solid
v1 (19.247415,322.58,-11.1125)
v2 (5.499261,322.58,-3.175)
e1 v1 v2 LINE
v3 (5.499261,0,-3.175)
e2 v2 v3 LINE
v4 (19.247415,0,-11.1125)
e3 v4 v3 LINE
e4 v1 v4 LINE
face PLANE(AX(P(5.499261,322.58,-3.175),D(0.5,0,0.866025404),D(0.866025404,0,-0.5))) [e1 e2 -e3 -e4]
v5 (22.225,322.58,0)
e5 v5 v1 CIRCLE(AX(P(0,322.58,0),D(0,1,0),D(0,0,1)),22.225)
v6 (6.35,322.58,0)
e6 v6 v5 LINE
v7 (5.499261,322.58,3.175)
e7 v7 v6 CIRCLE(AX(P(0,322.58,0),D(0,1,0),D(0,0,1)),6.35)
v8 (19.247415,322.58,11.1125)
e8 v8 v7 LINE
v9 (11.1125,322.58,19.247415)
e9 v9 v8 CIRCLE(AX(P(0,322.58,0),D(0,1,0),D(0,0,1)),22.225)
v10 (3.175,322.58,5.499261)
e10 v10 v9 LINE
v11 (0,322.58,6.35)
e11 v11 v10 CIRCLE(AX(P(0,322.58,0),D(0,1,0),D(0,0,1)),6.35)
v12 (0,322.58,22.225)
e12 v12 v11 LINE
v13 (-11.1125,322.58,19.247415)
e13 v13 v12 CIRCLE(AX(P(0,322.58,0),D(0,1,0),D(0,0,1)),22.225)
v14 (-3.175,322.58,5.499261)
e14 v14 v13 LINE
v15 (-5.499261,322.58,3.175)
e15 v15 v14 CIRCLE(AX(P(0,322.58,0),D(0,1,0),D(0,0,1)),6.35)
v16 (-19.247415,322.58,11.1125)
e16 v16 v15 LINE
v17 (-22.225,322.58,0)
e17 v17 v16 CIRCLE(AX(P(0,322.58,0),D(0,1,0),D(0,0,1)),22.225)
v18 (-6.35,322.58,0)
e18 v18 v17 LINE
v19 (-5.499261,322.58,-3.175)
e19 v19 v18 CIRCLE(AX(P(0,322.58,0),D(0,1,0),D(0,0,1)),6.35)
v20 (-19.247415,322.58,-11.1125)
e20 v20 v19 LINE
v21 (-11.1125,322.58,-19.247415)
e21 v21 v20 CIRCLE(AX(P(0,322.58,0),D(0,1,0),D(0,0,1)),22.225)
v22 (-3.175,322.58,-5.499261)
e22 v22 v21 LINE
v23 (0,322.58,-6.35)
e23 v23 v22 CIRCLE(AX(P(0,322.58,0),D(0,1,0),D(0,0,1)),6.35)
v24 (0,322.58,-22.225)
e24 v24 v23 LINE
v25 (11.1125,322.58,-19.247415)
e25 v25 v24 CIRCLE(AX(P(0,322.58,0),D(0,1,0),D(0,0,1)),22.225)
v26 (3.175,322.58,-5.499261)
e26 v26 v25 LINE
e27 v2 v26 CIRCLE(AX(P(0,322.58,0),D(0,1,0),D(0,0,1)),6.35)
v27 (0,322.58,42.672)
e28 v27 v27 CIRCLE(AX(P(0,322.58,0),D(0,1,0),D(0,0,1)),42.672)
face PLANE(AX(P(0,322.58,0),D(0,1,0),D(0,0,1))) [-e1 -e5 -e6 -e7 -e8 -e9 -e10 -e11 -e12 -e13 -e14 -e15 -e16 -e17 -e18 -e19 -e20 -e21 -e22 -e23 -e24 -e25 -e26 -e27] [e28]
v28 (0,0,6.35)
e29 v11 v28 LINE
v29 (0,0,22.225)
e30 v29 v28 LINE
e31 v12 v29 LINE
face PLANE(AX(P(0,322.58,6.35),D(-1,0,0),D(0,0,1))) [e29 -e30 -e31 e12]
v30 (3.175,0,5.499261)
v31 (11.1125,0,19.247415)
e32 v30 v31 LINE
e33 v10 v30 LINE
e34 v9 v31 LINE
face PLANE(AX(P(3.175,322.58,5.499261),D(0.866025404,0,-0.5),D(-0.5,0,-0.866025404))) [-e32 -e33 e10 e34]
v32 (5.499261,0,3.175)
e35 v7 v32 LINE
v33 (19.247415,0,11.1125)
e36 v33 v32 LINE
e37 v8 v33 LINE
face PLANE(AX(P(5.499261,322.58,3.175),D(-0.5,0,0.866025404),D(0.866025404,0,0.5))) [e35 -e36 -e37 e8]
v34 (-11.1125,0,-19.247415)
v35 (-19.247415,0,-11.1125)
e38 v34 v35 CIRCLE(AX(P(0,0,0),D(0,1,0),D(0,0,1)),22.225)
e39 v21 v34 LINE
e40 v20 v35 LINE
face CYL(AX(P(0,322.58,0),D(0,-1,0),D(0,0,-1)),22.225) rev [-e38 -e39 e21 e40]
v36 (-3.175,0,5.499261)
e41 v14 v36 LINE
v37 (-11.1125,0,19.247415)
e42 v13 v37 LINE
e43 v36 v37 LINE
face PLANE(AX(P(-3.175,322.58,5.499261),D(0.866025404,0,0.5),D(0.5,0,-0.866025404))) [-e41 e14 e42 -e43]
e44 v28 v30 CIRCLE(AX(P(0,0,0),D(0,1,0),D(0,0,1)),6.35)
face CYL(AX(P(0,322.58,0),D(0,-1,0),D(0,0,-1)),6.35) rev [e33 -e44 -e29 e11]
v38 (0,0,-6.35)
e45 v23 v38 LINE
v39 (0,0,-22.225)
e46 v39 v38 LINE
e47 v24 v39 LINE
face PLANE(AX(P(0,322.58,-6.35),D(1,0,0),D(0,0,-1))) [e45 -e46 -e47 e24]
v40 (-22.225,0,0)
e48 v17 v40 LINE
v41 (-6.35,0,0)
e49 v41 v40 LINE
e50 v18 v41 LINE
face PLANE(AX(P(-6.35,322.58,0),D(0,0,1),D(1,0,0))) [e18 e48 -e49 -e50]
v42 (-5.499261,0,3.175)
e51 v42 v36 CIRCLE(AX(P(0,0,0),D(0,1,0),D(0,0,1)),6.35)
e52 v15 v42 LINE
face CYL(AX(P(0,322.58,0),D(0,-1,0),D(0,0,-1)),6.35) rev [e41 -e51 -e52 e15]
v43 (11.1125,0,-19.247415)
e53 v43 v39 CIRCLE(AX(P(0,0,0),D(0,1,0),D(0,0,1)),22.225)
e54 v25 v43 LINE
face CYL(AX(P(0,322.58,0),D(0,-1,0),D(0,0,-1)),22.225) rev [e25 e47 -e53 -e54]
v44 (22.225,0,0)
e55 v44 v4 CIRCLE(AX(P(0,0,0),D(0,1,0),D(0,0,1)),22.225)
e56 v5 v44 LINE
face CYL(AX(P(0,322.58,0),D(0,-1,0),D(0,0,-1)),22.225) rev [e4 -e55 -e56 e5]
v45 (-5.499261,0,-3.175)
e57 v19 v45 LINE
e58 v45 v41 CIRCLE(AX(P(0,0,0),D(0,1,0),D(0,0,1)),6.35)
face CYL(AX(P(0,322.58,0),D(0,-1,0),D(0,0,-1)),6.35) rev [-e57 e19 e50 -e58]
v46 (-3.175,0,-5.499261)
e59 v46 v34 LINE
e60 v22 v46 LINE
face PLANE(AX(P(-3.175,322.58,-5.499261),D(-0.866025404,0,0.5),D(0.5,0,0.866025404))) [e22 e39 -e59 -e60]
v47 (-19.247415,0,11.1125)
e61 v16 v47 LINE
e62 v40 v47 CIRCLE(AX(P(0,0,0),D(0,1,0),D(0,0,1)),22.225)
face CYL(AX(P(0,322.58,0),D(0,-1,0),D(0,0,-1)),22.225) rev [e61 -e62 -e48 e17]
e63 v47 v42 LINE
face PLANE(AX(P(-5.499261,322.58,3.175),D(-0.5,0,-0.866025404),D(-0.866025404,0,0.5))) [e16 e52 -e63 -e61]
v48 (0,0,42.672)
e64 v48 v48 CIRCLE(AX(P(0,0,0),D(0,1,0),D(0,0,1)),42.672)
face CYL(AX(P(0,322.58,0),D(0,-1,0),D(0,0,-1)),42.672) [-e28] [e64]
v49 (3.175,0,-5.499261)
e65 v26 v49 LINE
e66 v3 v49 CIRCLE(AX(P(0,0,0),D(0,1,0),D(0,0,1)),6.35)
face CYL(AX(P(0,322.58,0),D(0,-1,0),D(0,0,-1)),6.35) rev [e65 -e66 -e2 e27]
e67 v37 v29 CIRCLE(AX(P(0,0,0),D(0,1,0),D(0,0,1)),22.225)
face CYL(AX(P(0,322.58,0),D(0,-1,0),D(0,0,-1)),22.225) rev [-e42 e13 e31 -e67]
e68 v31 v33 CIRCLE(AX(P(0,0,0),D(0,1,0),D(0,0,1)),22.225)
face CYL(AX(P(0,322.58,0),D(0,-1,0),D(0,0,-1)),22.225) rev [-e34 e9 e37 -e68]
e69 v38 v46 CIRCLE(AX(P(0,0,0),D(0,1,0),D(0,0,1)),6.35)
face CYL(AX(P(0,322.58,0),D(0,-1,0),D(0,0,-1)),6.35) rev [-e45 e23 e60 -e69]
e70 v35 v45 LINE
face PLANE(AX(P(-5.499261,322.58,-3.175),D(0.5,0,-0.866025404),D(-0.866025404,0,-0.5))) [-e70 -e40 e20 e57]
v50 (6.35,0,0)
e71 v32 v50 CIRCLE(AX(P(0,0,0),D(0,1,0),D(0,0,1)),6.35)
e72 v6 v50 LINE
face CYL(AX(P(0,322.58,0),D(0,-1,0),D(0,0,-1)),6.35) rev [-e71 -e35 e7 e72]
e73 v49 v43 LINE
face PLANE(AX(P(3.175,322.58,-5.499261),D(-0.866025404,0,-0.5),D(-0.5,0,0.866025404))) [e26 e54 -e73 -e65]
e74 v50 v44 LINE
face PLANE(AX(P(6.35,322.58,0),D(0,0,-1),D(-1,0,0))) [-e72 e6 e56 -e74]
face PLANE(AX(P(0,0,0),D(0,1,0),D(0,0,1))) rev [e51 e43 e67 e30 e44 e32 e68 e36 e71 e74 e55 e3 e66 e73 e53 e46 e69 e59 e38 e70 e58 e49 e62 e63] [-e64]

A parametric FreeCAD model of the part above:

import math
import FreeCAD as App
import Part
import Sketcher
Q = App.Units.Quantity

doc = App.newDocument("Part")
body = doc.addObject("PartDesign::Body", "Body")

sketch1 = body.newObject("Sketcher::SketchObject", "Sketch")
sketch1.AttachmentSupport = (doc.getObject("XZ_Plane"), [""])
sketch1.MapMode = "FlatFace"
sketch1.addGeometry(Part.Circle(App.Vector(0, 0, 0), App.Vector(0, 0, 1), 42.7), False)
sketch1.addGeometry(Part.ArcOfCircle(Part.Circle(App.Vector(0, 0, 0), App.Vector(0, 0, 1), 6.4), math.radians(-120), math.radians(-90)), False)
sketch1.addGeometry(Part.LineSegment(App.Vector(0, -6.3, 0), App.Vector(0, -22.2, 0)), False)
sketch1.addGeometry(Part.ArcOfCircle(Part.Circle(App.Vector(0, 0, 0), App.Vector(0, 0, 1), 22.2), math.radians(-90), math.radians(-60)), False)
sketch1.addGeometry(Part.LineSegment(App.Vector(11.1, -19.2, 0), App.Vector(3.2, -5.5, 0)), False)
sketch1.addGeometry(Part.ArcOfCircle(Part.Circle(App.Vector(0, 0, 0), App.Vector(0, 0, 1), 6.3), math.radians(-60), math.radians(-30)), False)
sketch1.addGeometry(Part.LineSegment(App.Vector(5.5, -3.2, 0), App.Vector(19.2, -11.1, 0)), False)
sketch1.addGeometry(Part.ArcOfCircle(Part.Circle(App.Vector(0, 0, 0), App.Vector(0, 0, 1), 22.2), math.radians(-30), math.radians(0)), False)
sketch1.addGeometry(Part.LineSegment(App.Vector(22.2, 0, 0), App.Vector(6.3, 0, 0)), False)
sketch1.addGeometry(Part.ArcOfCircle(Part.Circle(App.Vector(0, 0, 0), App.Vector(0, 0, 1), 6.4), math.radians(0), math.radians(30)), False)
sketch1.addGeometry(Part.LineSegment(App.Vector(5.5, 3.2, 0), App.Vector(19.2, 11.1, 0)), False)
sketch1.addGeometry(Part.ArcOfCircle(Part.Circle(App.Vector(0, 0, 0), App.Vector(0, 0, 1), 22.2), math.radians(30), math.radians(60)), False)
sketch1.addGeometry(Part.LineSegment(App.Vector(11.1, 19.2, 0), App.Vector(3.2, 5.5, 0)), False)
sketch1.addGeometry(Part.ArcOfCircle(Part.Circle(App.Vector(0, 0, 0), App.Vector(0, 0, 1), 6.4), math.radians(60), math.radians(90)), False)
sketch1.addGeometry(Part.LineSegment(App.Vector(0, 6.3, 0), App.Vector(0, 22.2, 0)), False)
sketch1.addGeometry(Part.ArcOfCircle(Part.Circle(App.Vector(0, 0, 0), App.Vector(0, 0, 1), 22.2), math.radians(90), math.radians(120)), False)
sketch1.addGeometry(Part.LineSegment(App.Vector(-11.1, 19.2, 0), App.Vector(-3.2, 5.5, 0)), False)
sketch1.addGeometry(Part.ArcOfCircle(Part.Circle(App.Vector(0, 0, 0), App.Vector(0, 0, 1), 6.3), math.radians(120), math.radians(150)), False)
sketch1.addGeometry(Part.LineSegment(App.Vector(-5.5, 3.2, 0), App.Vector(-19.2, 11.1, 0)), False)
sketch1.addGeometry(Part.ArcOfCircle(Part.Circle(App.Vector(0, 0, 0), App.Vector(0, 0, 1), 22.2), math.radians(150), math.radians(180)), False)
sketch1.addGeometry(Part.LineSegment(App.Vector(-22.2, 0, 0), App.Vector(-6.3, 0, 0)), False)
sketch1.addGeometry(Part.ArcOfCircle(Part.Circle(App.Vector(0, 0, 0), App.Vector(0, 0, 1), 6.4), math.radians(180), math.radians(210)), False)
sketch1.addGeometry(Part.LineSegment(App.Vector(-5.5, -3.2, 0), App.Vector(-19.2, -11.1, 0)), False)
sketch1.addGeometry(Part.ArcOfCircle(Part.Circle(App.Vector(0, 0, 0), App.Vector(0, 0, 1), 22.2), math.radians(-150), math.radians(-120)), False)
sketch1.addGeometry(Part.LineSegment(App.Vector(-11.1, -19.2, 0), App.Vector(-3.2, -5.5, 0)), False)
sketch1.addConstraint(Sketcher.Constraint("Coincident", 1, 2, 2, 1))
sketch1.addConstraint(Sketcher.Constraint("Coincident", 2, 2, 3, 1))
sketch1.addConstraint(Sketcher.Constraint("Coincident", 3, 2, 4, 1))
sketch1.addConstraint(Sketcher.Constraint("Coincident", 4, 2, 5, 1))
sketch1.addConstraint(Sketcher.Constraint("Coincident", 5, 2, 6, 1))
sketch1.addConstraint(Sketcher.Constraint("Coincident", 6, 2, 7, 1))
sketch1.addConstraint(Sketcher.Constraint("Coincident", 7, 2, 8, 1))
sketch1.addConstraint(Sketcher.Constraint("Coincident", 8, 2, 9, 1))
sketch1.addConstraint(Sketcher.Constraint("Coincident", 9, 2, 10, 1))
sketch1.addConstraint(Sketcher.Constraint("Coincident", 10, 2, 11, 1))
sketch1.addConstraint(Sketcher.Constraint("Coincident", 11, 2, 12, 1))
sketch1.addConstraint(Sketcher.Constraint("Coincident", 12, 2, 13, 1))
sketch1.addConstraint(Sketcher.Constraint("Coincident", 13, 2, 14, 1))
sketch1.addConstraint(Sketcher.Constraint("Coincident", 14, 2, 15, 1))
sketch1.addConstraint(Sketcher.Constraint("Coincident", 15, 2, 16, 1))
sketch1.addConstraint(Sketcher.Constraint("Coincident", 16, 2, 17, 1))
sketch1.addConstraint(Sketcher.Constraint("Coincident", 17, 2, 18, 1))
sketch1.addConstraint(Sketcher.Constraint("Coincident", 18, 2, 19, 1))
sketch1.addConstraint(Sketcher.Constraint("Coincident", 19, 2, 20, 1))
sketch1.addConstraint(Sketcher.Constraint("Coincident", 20, 2, 21, 1))
sketch1.addConstraint(Sketcher.Constraint("Coincident", 21, 2, 22, 1))
sketch1.addConstraint(Sketcher.Constraint("Coincident", 22, 2, 23, 1))
sketch1.addConstraint(Sketcher.Constraint("Coincident", 23, 2, 24, 1))
sketch1.addConstraint(Sketcher.Constraint("Coincident", 24, 2, 1, 1))
sketch1.addConstraint(Sketcher.Constraint("Vertical", 2))
sketch1.addConstraint(Sketcher.Constraint("Horizontal", 8))
sketch1.addConstraint(Sketcher.Constraint("Vertical", 14))
sketch1.addConstraint(Sketcher.Constraint("Horizontal", 20))
sketch1.addConstraint(Sketcher.Constraint("Coincident", 0, 3, -1, 1))
sketch1.addConstraint(Sketcher.Constraint("Coincident", 1, 3, -1, 1))
sketch1.addConstraint(Sketcher.Constraint("Coincident", 3, 3, -1, 1))
sketch1.addConstraint(Sketcher.Constraint("Coincident", 5, 3, -1, 1))
sketch1.addConstraint(Sketcher.Constraint("Coincident", 7, 3, -1, 1))
sketch1.addConstraint(Sketcher.Constraint("Coincident", 9, 3, -1, 1))
sketch1.addConstraint(Sketcher.Constraint("Coincident", 11, 3, -1, 1))
sketch1.addConstraint(Sketcher.Constraint("Coincident", 13, 3, -1, 1))
sketch1.addConstraint(Sketcher.Constraint("Coincident", 15, 3, -1, 1))
sketch1.addConstraint(Sketcher.Constraint("Coincident", 17, 3, -1, 1))
sketch1.addConstraint(Sketcher.Constraint("Coincident", 19, 3, -1, 1))
sketch1.addConstraint(Sketcher.Constraint("Coincident", 21, 3, -1, 1))
sketch1.addConstraint(Sketcher.Constraint("Coincident", 23, 3, -1, 1))
sketch1.addConstraint(Sketcher.Constraint("Equal", 1, 5))
sketch1.addConstraint(Sketcher.Constraint("Equal", 3, 7))
sketch1.addConstraint(Sketcher.Constraint("Equal", 5, 9))
sketch1.addConstraint(Sketcher.Constraint("Equal", 7, 11))
sketch1.addConstraint(Sketcher.Constraint("Equal", 9, 13))
sketch1.addConstraint(Sketcher.Constraint("Equal", 11, 15))
sketch1.addConstraint(Sketcher.Constraint("Equal", 13, 17))
sketch1.addConstraint(Sketcher.Constraint("Equal", 15, 19))
sketch1.addConstraint(Sketcher.Constraint("Equal", 17, 21))
sketch1.addConstraint(Sketcher.Constraint("Equal", 19, 23))
sketch1.addConstraint(Sketcher.Constraint("PointOnObject", 1, 2, -2))
sketch1.addConstraint(Sketcher.Constraint("PointOnObject", 7, 2, -1))
sketch1.addConstraint(Sketcher.Constraint("PointOnObject", 13, 2, -2))
sketch1.addConstraint(Sketcher.Constraint("PointOnObject", 19, 2, -1))
sketch1.addConstraint(Sketcher.Constraint("Perpendicular", 4, 10))
sketch1.addConstraint(Sketcher.Constraint("Perpendicular", 6, 12))
sketch1.addConstraint(Sketcher.Constraint("Perpendicular", 10, 16))
sketch1.addConstraint(Sketcher.Constraint("Perpendicular", 12, 18))
sketch1.addConstraint(Sketcher.Constraint("Perpendicular", 16, 22))
sketch1.addConstraint(Sketcher.Constraint("Perpendicular", 18, 24))
sketch1.addConstraint(Sketcher.Constraint("Horizontal", 11, 2, 15, 2))
sketch1.addConstraint(Sketcher.Constraint("Horizontal", 12, 2, 16, 2))
sketch1.addConstraint(Sketcher.Constraint("Horizontal", 9, 2, 17, 2))
sketch1.addConstraint(Sketcher.Constraint("Horizontal", 5, 2, 21, 2))
sketch1.addConstraint(Sketcher.Constraint("Horizontal", 3, 2, 23, 2))
sketch1.addConstraint(Sketcher.Constraint("Vertical", 5, 2, 9, 2))
sketch1.addConstraint(Sketcher.Constraint("Vertical", 3, 2, 11, 2))
sketch1.addConstraint(Sketcher.Constraint("Diameter", 0, Q("3.36 in")))
sketch1.addConstraint(Sketcher.Constraint("Radius", 1, Q("0.25 in")))
sketch1.addConstraint(Sketcher.Constraint("Angle", 4, Q("120 deg")))
sketch1.addConstraint(Sketcher.Constraint("Radius", 3, Q("0.875 in")))
sketch1.addConstraint(Sketcher.Constraint("DistanceX", 4, 2, 7, 2, Q("0.75 in")))
sketch1.addConstraint(Sketcher.Constraint("DistanceY", 9, 2, 14, 2, Q("0.75 in")))
pad1 = body.newObject("PartDesign::Pad", "Pad")
pad1.Profile = sketch1
pad1.Length = Q("12.7 in")
pad1.Reversed = True

doc.recompute()
